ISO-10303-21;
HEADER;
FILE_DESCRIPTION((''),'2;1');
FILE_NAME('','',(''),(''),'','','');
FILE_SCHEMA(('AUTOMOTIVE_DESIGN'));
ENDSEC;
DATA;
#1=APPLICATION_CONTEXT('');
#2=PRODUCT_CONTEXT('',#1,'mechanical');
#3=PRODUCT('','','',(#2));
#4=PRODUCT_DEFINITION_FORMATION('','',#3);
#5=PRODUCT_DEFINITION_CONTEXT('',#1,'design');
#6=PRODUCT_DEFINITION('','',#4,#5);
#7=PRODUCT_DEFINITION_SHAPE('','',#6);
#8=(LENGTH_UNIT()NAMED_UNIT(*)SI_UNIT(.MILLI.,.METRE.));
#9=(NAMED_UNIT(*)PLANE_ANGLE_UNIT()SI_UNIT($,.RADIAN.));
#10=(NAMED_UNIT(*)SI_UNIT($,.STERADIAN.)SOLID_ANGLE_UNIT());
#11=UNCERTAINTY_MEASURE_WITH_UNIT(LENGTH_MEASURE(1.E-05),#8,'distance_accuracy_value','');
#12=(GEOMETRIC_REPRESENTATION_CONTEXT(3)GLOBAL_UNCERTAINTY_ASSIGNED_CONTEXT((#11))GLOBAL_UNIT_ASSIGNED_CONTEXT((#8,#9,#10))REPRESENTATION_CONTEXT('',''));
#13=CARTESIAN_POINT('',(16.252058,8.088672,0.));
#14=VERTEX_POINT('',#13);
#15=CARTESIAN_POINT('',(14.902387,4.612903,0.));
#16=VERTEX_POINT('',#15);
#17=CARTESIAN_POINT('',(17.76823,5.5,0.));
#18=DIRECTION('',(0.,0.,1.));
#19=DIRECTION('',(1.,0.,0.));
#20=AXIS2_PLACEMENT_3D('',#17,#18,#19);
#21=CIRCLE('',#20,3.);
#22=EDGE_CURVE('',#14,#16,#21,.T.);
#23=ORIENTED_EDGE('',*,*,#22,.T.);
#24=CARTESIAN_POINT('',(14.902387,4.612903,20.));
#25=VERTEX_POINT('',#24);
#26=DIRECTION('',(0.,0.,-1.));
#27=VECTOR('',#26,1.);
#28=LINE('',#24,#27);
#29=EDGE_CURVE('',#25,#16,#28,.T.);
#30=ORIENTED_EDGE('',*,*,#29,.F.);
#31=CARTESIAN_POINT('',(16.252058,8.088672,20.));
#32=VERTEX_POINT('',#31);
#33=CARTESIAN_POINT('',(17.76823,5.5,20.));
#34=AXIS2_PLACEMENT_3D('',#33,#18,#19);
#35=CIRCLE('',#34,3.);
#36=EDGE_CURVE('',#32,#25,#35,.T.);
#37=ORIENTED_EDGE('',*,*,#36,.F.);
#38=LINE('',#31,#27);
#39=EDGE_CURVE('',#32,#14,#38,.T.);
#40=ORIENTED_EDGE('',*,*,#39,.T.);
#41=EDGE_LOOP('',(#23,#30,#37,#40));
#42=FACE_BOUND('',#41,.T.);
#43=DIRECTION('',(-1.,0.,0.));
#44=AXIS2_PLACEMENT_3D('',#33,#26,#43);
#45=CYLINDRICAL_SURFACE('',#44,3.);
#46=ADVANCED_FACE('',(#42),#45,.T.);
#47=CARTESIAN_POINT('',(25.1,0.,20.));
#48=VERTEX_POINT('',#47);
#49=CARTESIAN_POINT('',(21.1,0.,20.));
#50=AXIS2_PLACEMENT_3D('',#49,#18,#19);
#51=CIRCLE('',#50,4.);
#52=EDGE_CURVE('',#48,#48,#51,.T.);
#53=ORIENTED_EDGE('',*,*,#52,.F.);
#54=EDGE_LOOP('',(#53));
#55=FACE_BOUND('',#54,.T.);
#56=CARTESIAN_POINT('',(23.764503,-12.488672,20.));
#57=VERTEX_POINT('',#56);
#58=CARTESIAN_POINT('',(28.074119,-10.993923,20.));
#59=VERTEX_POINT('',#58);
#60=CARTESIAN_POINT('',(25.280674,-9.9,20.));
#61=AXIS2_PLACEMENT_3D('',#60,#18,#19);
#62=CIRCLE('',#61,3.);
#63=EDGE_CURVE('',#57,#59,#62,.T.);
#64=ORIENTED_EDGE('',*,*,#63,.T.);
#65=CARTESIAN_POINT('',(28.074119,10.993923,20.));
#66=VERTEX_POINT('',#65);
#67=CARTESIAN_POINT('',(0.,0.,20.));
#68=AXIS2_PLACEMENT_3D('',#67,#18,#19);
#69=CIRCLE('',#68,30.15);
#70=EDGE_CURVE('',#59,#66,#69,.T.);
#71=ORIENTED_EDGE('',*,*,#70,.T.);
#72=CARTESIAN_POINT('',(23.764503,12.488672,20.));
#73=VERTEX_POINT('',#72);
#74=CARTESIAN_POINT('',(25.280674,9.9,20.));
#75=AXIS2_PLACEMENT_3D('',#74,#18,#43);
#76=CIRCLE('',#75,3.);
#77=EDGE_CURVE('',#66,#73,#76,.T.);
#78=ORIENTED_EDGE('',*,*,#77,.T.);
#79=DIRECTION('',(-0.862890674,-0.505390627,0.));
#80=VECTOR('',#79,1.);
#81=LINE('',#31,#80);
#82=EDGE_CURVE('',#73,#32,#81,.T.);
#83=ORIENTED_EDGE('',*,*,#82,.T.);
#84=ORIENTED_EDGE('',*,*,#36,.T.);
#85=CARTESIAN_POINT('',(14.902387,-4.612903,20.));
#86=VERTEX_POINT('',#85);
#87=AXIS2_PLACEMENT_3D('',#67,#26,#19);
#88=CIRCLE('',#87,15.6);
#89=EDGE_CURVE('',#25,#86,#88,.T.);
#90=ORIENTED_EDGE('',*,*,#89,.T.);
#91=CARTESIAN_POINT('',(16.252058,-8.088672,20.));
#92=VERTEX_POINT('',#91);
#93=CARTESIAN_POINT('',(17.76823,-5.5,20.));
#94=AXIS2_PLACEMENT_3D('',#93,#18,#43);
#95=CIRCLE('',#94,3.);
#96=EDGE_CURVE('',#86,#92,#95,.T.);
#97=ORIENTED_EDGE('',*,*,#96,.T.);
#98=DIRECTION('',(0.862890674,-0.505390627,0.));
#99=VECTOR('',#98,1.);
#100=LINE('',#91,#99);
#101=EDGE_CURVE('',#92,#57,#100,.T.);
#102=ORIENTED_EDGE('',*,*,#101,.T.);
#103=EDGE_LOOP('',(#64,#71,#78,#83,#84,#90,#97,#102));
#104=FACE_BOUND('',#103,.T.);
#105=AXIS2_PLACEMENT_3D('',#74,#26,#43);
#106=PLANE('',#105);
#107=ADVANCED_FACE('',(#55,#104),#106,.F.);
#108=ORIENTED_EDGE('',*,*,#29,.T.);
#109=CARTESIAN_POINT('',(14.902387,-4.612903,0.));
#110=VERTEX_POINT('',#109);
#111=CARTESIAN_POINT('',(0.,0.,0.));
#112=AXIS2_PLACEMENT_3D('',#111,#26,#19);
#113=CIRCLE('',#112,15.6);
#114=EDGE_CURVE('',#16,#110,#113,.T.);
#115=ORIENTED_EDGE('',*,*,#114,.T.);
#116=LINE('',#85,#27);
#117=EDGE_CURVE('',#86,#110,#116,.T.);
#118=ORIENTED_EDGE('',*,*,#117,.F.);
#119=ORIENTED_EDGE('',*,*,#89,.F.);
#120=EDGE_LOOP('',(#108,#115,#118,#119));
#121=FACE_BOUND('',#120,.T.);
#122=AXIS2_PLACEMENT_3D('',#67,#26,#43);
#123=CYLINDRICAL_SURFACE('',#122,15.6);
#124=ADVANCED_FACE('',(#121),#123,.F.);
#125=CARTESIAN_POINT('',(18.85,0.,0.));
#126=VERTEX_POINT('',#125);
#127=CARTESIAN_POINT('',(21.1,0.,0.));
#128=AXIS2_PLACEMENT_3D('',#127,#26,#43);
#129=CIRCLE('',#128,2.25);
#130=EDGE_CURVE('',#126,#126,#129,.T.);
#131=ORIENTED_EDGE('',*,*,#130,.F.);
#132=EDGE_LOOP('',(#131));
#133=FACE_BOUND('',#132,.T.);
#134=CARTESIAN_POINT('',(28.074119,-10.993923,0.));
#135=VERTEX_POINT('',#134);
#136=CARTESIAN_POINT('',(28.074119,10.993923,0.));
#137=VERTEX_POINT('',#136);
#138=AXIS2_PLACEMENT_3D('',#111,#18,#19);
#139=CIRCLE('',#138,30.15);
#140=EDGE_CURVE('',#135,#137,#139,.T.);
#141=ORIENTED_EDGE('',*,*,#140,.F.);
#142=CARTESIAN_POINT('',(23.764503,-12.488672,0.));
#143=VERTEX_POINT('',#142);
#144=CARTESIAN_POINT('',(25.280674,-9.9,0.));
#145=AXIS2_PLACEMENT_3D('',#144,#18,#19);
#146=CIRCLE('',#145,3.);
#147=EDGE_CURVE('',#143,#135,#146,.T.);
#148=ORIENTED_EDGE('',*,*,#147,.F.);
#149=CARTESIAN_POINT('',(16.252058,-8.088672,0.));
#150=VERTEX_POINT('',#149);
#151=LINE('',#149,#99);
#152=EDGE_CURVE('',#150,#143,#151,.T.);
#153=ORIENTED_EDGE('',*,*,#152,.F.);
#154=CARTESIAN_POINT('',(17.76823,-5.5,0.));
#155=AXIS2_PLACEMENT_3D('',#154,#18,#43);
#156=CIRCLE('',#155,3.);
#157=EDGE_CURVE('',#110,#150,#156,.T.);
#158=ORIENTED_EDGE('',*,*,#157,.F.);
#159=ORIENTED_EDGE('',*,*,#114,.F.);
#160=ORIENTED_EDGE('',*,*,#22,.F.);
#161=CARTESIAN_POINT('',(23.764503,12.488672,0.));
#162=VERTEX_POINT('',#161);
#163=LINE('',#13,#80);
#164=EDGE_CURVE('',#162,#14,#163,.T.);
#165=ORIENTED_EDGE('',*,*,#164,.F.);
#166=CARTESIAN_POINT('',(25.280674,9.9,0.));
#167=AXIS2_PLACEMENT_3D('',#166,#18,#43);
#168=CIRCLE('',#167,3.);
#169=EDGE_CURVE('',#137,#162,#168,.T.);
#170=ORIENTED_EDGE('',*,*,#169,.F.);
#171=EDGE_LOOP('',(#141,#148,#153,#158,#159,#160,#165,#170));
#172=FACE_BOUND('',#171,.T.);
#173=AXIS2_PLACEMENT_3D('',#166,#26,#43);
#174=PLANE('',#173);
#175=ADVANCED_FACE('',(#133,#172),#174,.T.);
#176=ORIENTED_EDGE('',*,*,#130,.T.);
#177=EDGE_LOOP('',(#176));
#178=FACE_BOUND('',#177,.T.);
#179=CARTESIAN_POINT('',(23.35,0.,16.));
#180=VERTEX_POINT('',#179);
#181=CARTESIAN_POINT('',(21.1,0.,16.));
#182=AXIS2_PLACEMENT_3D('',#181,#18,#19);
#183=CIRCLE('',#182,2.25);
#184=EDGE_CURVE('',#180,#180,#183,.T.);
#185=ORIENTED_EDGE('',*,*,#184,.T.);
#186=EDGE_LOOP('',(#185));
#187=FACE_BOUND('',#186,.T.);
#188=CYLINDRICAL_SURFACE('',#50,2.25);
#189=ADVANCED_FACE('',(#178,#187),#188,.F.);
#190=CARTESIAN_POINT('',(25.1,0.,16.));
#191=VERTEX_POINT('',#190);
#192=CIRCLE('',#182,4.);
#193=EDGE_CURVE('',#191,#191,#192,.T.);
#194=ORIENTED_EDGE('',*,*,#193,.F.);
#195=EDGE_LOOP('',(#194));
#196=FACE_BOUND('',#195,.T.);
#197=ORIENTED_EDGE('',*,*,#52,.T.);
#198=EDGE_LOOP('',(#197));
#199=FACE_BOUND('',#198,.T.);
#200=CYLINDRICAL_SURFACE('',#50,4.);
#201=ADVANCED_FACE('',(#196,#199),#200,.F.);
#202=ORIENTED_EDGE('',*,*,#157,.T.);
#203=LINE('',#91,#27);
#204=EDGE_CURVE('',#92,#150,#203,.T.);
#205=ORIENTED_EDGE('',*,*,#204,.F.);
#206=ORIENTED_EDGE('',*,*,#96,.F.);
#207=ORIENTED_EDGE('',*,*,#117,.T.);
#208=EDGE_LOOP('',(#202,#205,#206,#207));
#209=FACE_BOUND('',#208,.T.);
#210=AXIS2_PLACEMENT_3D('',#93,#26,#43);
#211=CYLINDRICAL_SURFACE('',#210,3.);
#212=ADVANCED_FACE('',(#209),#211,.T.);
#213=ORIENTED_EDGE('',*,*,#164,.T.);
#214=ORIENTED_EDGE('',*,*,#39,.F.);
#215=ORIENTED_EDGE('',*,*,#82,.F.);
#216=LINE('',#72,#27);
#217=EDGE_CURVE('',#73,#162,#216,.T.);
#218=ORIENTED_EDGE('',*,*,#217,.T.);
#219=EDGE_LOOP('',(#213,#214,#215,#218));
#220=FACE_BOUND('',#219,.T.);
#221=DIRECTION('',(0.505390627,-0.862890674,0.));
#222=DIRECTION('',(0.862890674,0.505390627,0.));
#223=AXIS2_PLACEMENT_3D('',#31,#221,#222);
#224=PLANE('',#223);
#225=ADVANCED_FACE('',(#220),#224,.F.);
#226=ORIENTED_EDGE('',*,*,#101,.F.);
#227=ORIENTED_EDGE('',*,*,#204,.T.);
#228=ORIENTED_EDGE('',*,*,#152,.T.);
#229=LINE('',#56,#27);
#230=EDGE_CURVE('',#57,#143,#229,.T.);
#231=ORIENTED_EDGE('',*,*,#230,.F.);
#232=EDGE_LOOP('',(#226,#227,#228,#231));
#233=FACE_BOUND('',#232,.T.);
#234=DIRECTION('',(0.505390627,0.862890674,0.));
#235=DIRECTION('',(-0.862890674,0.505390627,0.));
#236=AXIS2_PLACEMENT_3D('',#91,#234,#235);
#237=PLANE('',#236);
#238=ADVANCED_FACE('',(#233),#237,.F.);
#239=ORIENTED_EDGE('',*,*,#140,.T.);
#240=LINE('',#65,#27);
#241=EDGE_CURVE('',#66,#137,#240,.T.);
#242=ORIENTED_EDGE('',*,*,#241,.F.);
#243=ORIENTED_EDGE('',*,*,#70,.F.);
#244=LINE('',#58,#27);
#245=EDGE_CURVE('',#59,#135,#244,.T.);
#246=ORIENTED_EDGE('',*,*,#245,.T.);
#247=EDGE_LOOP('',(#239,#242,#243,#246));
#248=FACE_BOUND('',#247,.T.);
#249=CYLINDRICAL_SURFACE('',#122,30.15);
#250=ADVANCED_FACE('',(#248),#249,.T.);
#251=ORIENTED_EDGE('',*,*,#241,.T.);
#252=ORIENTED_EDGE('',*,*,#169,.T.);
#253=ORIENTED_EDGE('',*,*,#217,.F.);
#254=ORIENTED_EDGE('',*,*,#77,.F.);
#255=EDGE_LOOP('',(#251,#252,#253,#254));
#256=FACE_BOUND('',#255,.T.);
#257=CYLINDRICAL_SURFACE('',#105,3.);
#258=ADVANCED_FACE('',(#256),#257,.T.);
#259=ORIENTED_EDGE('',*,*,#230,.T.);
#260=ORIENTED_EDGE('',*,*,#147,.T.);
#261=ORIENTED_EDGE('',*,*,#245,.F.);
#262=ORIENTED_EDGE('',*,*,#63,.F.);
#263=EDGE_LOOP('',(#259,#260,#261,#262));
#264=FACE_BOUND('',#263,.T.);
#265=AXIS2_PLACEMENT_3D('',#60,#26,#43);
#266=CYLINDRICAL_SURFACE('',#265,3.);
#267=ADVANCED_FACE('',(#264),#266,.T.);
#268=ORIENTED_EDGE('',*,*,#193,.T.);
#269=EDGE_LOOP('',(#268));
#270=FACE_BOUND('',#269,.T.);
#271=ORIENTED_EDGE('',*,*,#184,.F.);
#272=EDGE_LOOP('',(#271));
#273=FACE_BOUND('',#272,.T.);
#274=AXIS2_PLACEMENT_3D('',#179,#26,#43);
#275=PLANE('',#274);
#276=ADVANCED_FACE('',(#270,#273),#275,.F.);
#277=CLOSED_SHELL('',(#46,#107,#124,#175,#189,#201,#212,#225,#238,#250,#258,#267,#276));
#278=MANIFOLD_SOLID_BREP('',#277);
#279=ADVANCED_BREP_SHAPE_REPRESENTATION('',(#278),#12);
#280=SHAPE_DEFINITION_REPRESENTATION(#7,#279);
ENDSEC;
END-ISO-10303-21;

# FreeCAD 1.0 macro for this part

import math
import FreeCAD as App
import Part
import Sketcher
from FreeCAD import Vector

doc = App.newDocument("Part")
body = doc.addObject("PartDesign::Body", "Body")

# Sketch on XY plane
sketch1 = body.newObject("Sketcher::SketchObject", "Sketch")
sketch1.AttachmentSupport = (doc.getObject("XY_Plane"), [""])
sketch1.MapMode = "FlatFace"
sketch1.addGeometry([
    Part.LineSegment(Vector(23.8, 12.5, 0), Vector(16.3, 8.1, 0)),  # 0
    Part.ArcOfCircle(Part.Circle(Vector(17.8, 5.5, 0), Vector(0, 0, 1), 3), math.radians(120), math.radians(197)),  # 1
    Part.ArcOfCircle(Part.Circle(Vector(0, 0, 0), Vector(0, 0, 1), 15.6), math.radians(-17), math.radians(17)),  # 2
    Part.ArcOfCircle(Part.Circle(Vector(17.8, -5.5, 0), Vector(0, 0, 1), 3), math.radians(163), math.radians(240)),  # 3
    Part.LineSegment(Vector(16.3, -8.1, 0), Vector(23.8, -12.5, 0)),  # 4
    Part.ArcOfCircle(Part.Circle(Vector(25.3, -9.9, 0), Vector(0, 0, 1), 3), math.radians(-120), math.radians(-21)),  # 5
    Part.ArcOfCircle(Part.Circle(Vector(0, 0, 0), Vector(0, 0, 1), 30.1), math.radians(-21), math.radians(21)),  # 6
    Part.ArcOfCircle(Part.Circle(Vector(25.3, 9.9, 0), Vector(0, 0, 1), 3), math.radians(21), math.radians(120)),  # 7
], False)
sketch1.addConstraint([
    Sketcher.Constraint("Tangent", 0, 2, 1, 1),
    Sketcher.Constraint("Tangent", 1, 2, 2, 2),
    Sketcher.Constraint("Tangent", 2, 1, 3, 1),
    Sketcher.Constraint("Tangent", 3, 2, 4, 1),
    Sketcher.Constraint("Tangent", 4, 2, 5, 1),
    Sketcher.Constraint("Tangent", 5, 2, 6, 1),
    Sketcher.Constraint("Tangent", 6, 2, 7, 1),
    Sketcher.Constraint("Tangent", 7, 2, 0, 1),
    Sketcher.Constraint("Coincident", 2, 3, -1, 1),
    Sketcher.Constraint("Coincident", 6, 3, -1, 1),
    Sketcher.Constraint("Equal", 1, 3),
    Sketcher.Constraint("Equal", 3, 5),
    Sketcher.Constraint("Equal", 5, 7),
    Sketcher.Constraint("Symmetric", 0, 2, 3, 2, -1),
    Sketcher.Constraint("Radius", 1, 3.0),
    Sketcher.Constraint("Radius", 2, 15.6),
    Sketcher.Constraint("Radius", 6, 30.15),
    Sketcher.Constraint("DistanceY", 3, 3, 1, 3, 11.0),
    Sketcher.Constraint("DistanceY", 5, 3, -1, 1, 9.9),
])
pad1 = body.newObject("PartDesign::Pad", "Pad")
pad1.Profile = sketch1
pad1.Length = 20

# Sketch on XY plane
sketch2 = body.newObject("Sketcher::SketchObject", "Sketch001")
sketch2.AttachmentSupport = (doc.getObject("XY_Plane"), [""])
sketch2.MapMode = "FlatFace"
sketch2.AttachmentOffset = App.Placement(Vector(0, 0, 20), App.Rotation())
sketch2.addGeometry(Part.Circle(Vector(21.1, 0, 0), Vector(0, 0, 1), 2.2), False)
sketch2.addConstraint([
    Sketcher.Constraint("PointOnObject", 0, 3, -1),
    Sketcher.Constraint("Diameter", 0, 4.5),
    Sketcher.Constraint("DistanceX", -1, 1, 0, 3, 21.1),
])
doc.recompute()
hole = body.newObject("PartDesign::Hole", "Hole")
hole.Profile = sketch2
hole.ThreadType = "None"
hole.Diameter = 4.5
hole.DepthType = "Dimension"
hole.Depth = 30
hole.DrillPoint = "Angled"
hole.DrillPointAngle = 118
hole.HoleCutType = "Counterbore"
hole.HoleCutDiameter = 8
hole.HoleCutDepth = 4

doc.recompute()
